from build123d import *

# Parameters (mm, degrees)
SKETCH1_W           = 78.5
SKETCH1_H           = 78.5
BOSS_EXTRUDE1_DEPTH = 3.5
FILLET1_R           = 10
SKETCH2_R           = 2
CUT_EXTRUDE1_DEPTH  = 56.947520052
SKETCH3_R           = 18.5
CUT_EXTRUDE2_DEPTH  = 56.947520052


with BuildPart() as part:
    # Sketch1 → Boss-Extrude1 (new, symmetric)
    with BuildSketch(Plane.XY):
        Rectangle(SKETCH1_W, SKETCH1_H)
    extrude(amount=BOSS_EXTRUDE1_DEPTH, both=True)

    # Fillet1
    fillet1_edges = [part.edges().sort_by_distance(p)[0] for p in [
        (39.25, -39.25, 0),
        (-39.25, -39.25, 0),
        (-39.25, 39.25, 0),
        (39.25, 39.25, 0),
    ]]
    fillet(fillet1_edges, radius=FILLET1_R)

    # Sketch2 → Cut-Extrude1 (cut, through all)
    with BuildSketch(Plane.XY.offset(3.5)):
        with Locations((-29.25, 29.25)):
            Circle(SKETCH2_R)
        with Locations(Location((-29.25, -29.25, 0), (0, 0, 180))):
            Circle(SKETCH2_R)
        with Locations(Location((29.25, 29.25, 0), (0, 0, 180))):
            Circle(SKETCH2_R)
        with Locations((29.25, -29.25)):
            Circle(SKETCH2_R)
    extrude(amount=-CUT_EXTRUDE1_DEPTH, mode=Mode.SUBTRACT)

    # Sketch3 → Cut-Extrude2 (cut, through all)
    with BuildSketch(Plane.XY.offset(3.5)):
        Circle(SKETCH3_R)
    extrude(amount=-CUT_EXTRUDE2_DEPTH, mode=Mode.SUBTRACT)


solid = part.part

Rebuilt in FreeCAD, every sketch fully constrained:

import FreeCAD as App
import Part
import Sketcher
from FreeCAD import Vector


def edges_at(feature, points):
    """Names of the edges that pass closest to the given points."""
    edges = feature.Shape.Edges
    near = lambda p: min(range(len(edges)), key=lambda i: edges[i].distToShape(Part.Vertex(*p))[0])
    return sorted({f"Edge{near(p) + 1}" for p in points})

doc = App.newDocument("Part")
body = doc.addObject("PartDesign::Body", "Body")

# Sketch on XY plane
sketch1 = body.newObject("Sketcher::SketchObject", "Sketch")
sketch1.AttachmentSupport = (doc.getObject("XY_Plane"), [""])
sketch1.MapMode = "FlatFace"
sketch1.addGeometry([
    Part.LineSegment(Vector(-39, 39, 0), Vector(-39, -39, 0)),
    Part.LineSegment(Vector(-39, -39, 0), Vector(39, -39, 0)),
    Part.LineSegment(Vector(39, -39, 0), Vector(39, 39, 0)),
    Part.LineSegment(Vector(39, 39, 0), Vector(-39, 39, 0)),
], False)
sketch1.addConstraint([
    Sketcher.Constraint("Coincident", 0, 2, 1, 1),
    Sketcher.Constraint("Coincident", 1, 2, 2, 1),
    Sketcher.Constraint("Coincident", 2, 2, 3, 1),
    Sketcher.Constraint("Coincident", 3, 2, 0, 1),
    Sketcher.Constraint("Vertical", 0),
    Sketcher.Constraint("Horizontal", 1),
    Sketcher.Constraint("Vertical", 2),
    Sketcher.Constraint("Horizontal", 3),
    Sketcher.Constraint("Symmetric", 0, 2, 2, 2, -1, 1),
    Sketcher.Constraint("Equal", 3, 0),
    Sketcher.Constraint("DistanceX", 1, 1, 1, 2, 78.5),
])
pad1 = body.newObject("PartDesign::Pad", "Pad")
pad1.Profile = sketch1
pad1.Length = 7
pad1.Midplane = True
doc.recompute()

fillet = body.newObject("PartDesign::Fillet", "Fillet")
fillet.Base = (pad1, edges_at(pad1, [
    (39.25, -39.25, 0),
    (-39.25, -39.25, 0),
    (-39.25, 39.25, 0),
    (39.25, 39.25, 0),
]))
fillet.Radius = 10

# Sketch on XY plane
sketch2 = body.newObject("Sketcher::SketchObject", "Sketch001")
sketch2.AttachmentSupport = (doc.getObject("XY_Plane"), [""])
sketch2.MapMode = "FlatFace"
sketch2.AttachmentOffset = App.Placement(Vector(0, 0, 3.5), App.Rotation())
sketch2.addGeometry([
    Part.Circle(Vector(-29.2, 29.2, 0), Vector(0, 0, 1), 2),
    Part.Circle(Vector(-29.2, -29.2, 0), Vector(0, 0, 1), 2),
    Part.Circle(Vector(29.2, 29.2, 0), Vector(0, 0, 1), 2),
    Part.Circle(Vector(29.2, -29.2, 0), Vector(0, 0, 1), 2),
], False)
sketch2.addConstraint([
    Sketcher.Constraint("Equal", 0, 1),
    Sketcher.Constraint("Equal", 1, 2),
    Sketcher.Constraint("Equal", 2, 3),
    Sketcher.Constraint("Symmetric", 1, 3, 2, 3, -1, 1),
    Sketcher.Constraint("Symmetric", 0, 3, 3, 3, -1, 1),
    Sketcher.Constraint("Symmetric", 0, 3, 2, 3, -2),
    Sketcher.Constraint("Diameter", 0, 4.0),
    Sketcher.Constraint("DistanceY", 1, 3, 0, 3, 58.5),
    Sketcher.Constraint("DistanceX", 0, 3, 2, 3, 58.5),
])
pocket1 = body.newObject("PartDesign::Pocket", "Pocket")
pocket1.Profile = sketch2
pocket1.Type = "ThroughAll"

# Sketch on XY plane
sketch3 = body.newObject("Sketcher::SketchObject", "Sketch002")
sketch3.AttachmentSupport = (doc.getObject("XY_Plane"), [""])
sketch3.MapMode = "FlatFace"
sketch3.AttachmentOffset = App.Placement(Vector(0, 0, 3.5), App.Rotation())
sketch3.addGeometry(Part.Circle(Vector(0, 0, 0), Vector(0, 0, 1), 18), False)
sketch3.addConstraint([
    Sketcher.Constraint("Coincident", 0, 3, -1, 1),
    Sketcher.Constraint("Diameter", 0, 37.0),
])
pocket2 = body.newObject("PartDesign::Pocket", "Pocket001")
pocket2.Profile = sketch3
pocket2.Type = "ThroughAll"

doc.recompute()
